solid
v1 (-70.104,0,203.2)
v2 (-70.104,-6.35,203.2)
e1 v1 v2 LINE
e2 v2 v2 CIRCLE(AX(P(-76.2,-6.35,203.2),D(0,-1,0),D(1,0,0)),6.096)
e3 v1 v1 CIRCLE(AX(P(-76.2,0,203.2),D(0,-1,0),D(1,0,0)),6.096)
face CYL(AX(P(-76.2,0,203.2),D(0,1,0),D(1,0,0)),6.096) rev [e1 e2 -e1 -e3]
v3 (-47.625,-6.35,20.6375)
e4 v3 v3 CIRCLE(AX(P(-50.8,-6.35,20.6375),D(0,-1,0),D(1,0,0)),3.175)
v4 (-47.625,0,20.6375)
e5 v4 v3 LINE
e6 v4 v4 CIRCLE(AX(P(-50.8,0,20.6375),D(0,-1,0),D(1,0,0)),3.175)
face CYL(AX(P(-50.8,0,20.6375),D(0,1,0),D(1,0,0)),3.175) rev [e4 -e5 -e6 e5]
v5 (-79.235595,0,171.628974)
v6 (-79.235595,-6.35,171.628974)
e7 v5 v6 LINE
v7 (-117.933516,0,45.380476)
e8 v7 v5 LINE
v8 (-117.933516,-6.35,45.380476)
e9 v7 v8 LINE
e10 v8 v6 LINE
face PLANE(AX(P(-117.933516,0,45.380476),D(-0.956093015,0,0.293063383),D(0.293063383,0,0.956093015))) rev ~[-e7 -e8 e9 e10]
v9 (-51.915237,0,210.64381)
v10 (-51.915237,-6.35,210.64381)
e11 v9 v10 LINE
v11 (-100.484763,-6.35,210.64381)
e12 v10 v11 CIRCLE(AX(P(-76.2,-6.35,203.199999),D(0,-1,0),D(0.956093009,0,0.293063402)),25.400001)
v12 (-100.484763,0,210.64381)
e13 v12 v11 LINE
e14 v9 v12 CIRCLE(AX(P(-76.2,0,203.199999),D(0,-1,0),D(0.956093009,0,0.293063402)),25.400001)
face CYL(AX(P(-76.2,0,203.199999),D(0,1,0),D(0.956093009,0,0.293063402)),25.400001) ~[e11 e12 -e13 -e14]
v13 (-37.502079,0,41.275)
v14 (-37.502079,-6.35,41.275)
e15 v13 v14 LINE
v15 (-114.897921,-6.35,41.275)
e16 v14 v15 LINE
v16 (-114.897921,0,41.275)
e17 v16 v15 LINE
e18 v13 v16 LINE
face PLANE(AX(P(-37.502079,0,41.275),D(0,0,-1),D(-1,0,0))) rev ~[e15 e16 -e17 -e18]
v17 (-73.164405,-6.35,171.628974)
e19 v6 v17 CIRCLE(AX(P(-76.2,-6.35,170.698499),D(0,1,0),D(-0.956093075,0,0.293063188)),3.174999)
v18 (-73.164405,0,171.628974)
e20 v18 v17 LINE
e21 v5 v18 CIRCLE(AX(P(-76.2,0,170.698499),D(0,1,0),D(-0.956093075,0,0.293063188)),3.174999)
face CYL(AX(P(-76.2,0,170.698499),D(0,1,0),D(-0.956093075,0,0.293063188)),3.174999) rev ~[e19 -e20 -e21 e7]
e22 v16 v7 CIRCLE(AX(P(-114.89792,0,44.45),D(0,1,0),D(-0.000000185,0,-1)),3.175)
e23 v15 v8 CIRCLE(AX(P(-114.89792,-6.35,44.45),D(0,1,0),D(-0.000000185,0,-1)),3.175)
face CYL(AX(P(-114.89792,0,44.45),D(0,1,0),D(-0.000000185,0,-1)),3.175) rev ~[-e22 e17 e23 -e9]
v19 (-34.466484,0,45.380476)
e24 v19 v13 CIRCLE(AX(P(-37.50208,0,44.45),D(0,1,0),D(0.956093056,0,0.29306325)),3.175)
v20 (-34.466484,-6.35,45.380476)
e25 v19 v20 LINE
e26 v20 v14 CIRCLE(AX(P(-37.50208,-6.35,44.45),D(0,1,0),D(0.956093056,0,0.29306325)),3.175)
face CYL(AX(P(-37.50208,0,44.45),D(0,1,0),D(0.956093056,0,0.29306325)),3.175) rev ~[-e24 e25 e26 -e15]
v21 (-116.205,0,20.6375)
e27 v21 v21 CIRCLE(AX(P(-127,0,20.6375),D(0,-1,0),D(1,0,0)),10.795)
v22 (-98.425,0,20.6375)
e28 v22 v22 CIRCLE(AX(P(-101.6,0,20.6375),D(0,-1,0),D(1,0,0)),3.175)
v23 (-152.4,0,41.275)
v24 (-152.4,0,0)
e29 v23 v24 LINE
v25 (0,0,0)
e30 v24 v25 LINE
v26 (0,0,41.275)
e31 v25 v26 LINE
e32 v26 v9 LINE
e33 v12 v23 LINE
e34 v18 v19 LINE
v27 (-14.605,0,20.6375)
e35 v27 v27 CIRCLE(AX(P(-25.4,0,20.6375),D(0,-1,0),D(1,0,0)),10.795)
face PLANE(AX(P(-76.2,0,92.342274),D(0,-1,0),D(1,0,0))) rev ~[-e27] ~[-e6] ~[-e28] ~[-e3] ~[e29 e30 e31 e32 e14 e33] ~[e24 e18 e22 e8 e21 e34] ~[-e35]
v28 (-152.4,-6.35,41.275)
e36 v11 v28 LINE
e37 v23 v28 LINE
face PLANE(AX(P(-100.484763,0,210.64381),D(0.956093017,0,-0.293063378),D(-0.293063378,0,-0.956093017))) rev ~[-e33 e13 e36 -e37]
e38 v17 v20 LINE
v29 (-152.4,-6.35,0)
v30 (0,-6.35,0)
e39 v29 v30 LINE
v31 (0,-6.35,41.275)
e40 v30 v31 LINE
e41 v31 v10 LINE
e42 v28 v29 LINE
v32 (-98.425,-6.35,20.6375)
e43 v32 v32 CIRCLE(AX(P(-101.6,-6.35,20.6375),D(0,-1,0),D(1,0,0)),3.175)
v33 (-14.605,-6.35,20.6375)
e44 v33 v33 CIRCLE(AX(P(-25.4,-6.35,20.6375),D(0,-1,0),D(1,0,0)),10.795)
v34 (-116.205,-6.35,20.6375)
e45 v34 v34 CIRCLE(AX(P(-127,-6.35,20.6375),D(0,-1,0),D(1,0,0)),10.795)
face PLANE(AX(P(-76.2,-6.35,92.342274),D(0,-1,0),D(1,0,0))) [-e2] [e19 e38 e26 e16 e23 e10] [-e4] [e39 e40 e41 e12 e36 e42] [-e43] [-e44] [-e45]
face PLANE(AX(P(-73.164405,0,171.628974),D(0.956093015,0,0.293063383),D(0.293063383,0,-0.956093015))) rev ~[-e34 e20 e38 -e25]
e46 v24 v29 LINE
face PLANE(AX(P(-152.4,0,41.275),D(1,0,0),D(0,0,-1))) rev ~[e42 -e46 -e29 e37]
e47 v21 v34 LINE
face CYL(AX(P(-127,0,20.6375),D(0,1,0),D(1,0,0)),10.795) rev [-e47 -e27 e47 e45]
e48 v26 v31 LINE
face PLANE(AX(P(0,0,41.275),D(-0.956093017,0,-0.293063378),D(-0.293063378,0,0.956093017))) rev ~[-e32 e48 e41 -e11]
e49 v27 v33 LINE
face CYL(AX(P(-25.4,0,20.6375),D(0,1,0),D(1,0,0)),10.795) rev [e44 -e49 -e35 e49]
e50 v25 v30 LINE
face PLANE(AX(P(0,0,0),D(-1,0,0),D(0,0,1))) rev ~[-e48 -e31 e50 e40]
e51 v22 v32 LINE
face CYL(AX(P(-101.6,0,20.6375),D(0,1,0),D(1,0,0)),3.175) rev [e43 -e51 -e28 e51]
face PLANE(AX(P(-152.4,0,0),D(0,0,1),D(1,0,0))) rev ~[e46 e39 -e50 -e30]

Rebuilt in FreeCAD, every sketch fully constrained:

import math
import FreeCAD as App
import Part
import Sketcher
from FreeCAD import Vector
Q = App.Units.Quantity

doc = App.newDocument("Part")
body = doc.addObject("PartDesign::Body", "Body")

# Sketch on XZ plane
sketch1 = body.newObject("Sketcher::SketchObject", "Sketch")
sketch1.AttachmentSupport = (doc.getObject("XZ_Plane"), [""])
sketch1.MapMode = "FlatFace"
sketch1.addGeometry(Part.LineSegment(Vector(-152.4, 0, 0), Vector(0, 0, 0)), False)
sketch1.addGeometry(Part.LineSegment(Vector(0, 0, 0), Vector(0, 41.275, 0)), False)
sketch1.addGeometry(Part.LineSegment(Vector(0, 41.275, 0), Vector(-51.915237, 210.64381, 0)), False)
sketch1.addGeometry(Part.ArcOfCircle(Part.Circle(Vector(-76.2, 203.199999, 0), Vector(0, 0, 1), 25.400001), math.radians(17.041447), math.radians(162.958553)), False)
sketch1.addGeometry(Part.LineSegment(Vector(-100.484763, 210.64381, 0), Vector(-152.4, 41.275, 0)), False)
sketch1.addGeometry(Part.LineSegment(Vector(-152.4, 41.275, 0), Vector(-152.4, 0, 0)), False)
sketch1.addGeometry(Part.Circle(Vector(-127, 20.6375, 0), Vector(0, 0, 1), 10.795), False)
sketch1.addGeometry(Part.Circle(Vector(-101.6, 20.6375, 0), Vector(0, 0, 1), 3.175), False)
sketch1.addGeometry(Part.Circle(Vector(-50.8, 20.6375, 0), Vector(0, 0, 1), 3.175), False)
sketch1.addGeometry(Part.Circle(Vector(-25.4, 20.6375, 0), Vector(0, 0, 1), 10.795), False)
sketch1.addGeometry(Part.ArcOfCircle(Part.Circle(Vector(-37.50208, 44.45, 0), Vector(0, 0, 1), 3.175), math.radians(-89.999989), math.radians(17.041438)), False)
sketch1.addGeometry(Part.LineSegment(Vector(-37.502079, 41.275, 0), Vector(-114.897921, 41.275, 0)), False)
sketch1.addGeometry(Part.ArcOfCircle(Part.Circle(Vector(-114.89792, 44.45, 0), Vector(0, 0, 1), 3.175), math.radians(162.958562), math.radians(269.999989)), False)
sketch1.addGeometry(Part.LineSegment(Vector(-117.933516, 45.380476, 0), Vector(-79.235595, 171.628974, 0)), False)
sketch1.addGeometry(Part.ArcOfCircle(Part.Circle(Vector(-76.2, 170.698499, 0), Vector(0, 0, 1), 3.174999), math.radians(17.041434), math.radians(162.958566)), False)
sketch1.addGeometry(Part.LineSegment(Vector(-73.164405, 171.628974, 0), Vector(-34.466484, 45.380476, 0)), False)
sketch1.addGeometry(Part.Circle(Vector(-76.2, 203.2, 0), Vector(0, 0, 1), 6.096), False)
sketch1.addConstraint(Sketcher.Constraint("Coincident", 0, 2, 1, 1))
sketch1.addConstraint(Sketcher.Constraint("Coincident", 1, 2, 2, 1))
sketch1.addConstraint(Sketcher.Constraint("Tangent", 2, 2, 3, 1))
sketch1.addConstraint(Sketcher.Constraint("Tangent", 3, 2, 4, 1))
sketch1.addConstraint(Sketcher.Constraint("Coincident", 4, 2, 5, 1))
sketch1.addConstraint(Sketcher.Constraint("Coincident", 5, 2, 0, 1))
sketch1.addConstraint(Sketcher.Constraint("Tangent", 10, 1, 11, 1))
sketch1.addConstraint(Sketcher.Constraint("Tangent", 11, 2, 12, 2))
sketch1.addConstraint(Sketcher.Constraint("Tangent", 12, 1, 13, 1))
sketch1.addConstraint(Sketcher.Constraint("Tangent", 13, 2, 14, 2))
sketch1.addConstraint(Sketcher.Constraint("Tangent", 14, 1, 15, 1))
sketch1.addConstraint(Sketcher.Constraint("Tangent", 15, 2, 10, 2))
sketch1.addConstraint(Sketcher.Constraint("Horizontal", 0))
sketch1.addConstraint(Sketcher.Constraint("Vertical", 1))
sketch1.addConstraint(Sketcher.Constraint("Vertical", 5))
sketch1.addConstraint(Sketcher.Constraint("Horizontal", 11))
sketch1.addConstraint(Sketcher.Constraint("Coincident", 0, 2, -1, 1))
sketch1.addConstraint(Sketcher.Constraint("Coincident", 16, 3, 3, 3))
sketch1.addConstraint(Sketcher.Constraint("Equal", 7, 8))
sketch1.addConstraint(Sketcher.Constraint("Equal", 6, 9))
sketch1.addConstraint(Sketcher.Constraint("Equal", 8, 10))
sketch1.addConstraint(Sketcher.Constraint("Equal", 10, 12))
sketch1.addConstraint(Sketcher.Constraint("Equal", 12, 14))
sketch1.addConstraint(Sketcher.Constraint("Parallel", 4, 13))
sketch1.addConstraint(Sketcher.Constraint("Parallel", 2, 15))
sketch1.addConstraint(Sketcher.Constraint("Horizontal", 6, 3, 7, 3))
sketch1.addConstraint(Sketcher.Constraint("Horizontal", 7, 3, 8, 3))
sketch1.addConstraint(Sketcher.Constraint("Horizontal", 8, 3, 9, 3))
sketch1.addConstraint(Sketcher.Constraint("Horizontal", 2, 2, 3, 2))
sketch1.addConstraint(Sketcher.Constraint("Horizontal", 1, 2, 4, 2))
sketch1.addConstraint(Sketcher.Constraint("Horizontal", 4, 2, 10, 1))
sketch1.addConstraint(Sketcher.Constraint("Vertical", 3, 3, 14, 3))
sketch1.addConstraint(Sketcher.Constraint("Radius", 3, Q("1 in")))
sketch1.addConstraint(Sketcher.Constraint("Diameter", 6, Q("0.85 in")))
sketch1.addConstraint(Sketcher.Constraint("Diameter", 7, Q("0.25 in")))
sketch1.addConstraint(Sketcher.Constraint("Diameter", 16, Q("0.48 in")))
sketch1.addConstraint(Sketcher.Constraint("DistanceX", 0, 1, 0, 2, Q("6 in")))
sketch1.addConstraint(Sketcher.Constraint("DistanceY", -1, 1, 3, 3, Q("8 in")))
sketch1.addConstraint(Sketcher.Constraint("DistanceX", 6, 3, -1, 1, Q("5 in")))
sketch1.addConstraint(Sketcher.Constraint("DistanceX", 7, 3, -1, 1, Q("4 in")))
sketch1.addConstraint(Sketcher.Constraint("DistanceX", 8, 3, -1, 1, Q("2 in")))
sketch1.addConstraint(Sketcher.Constraint("DistanceX", 9, 3, -1, 1, Q("1 in")))
sketch1.addConstraint(Sketcher.Constraint("DistanceY", 1, 1, 1, 2, Q("1.625 in")))
sketch1.addConstraint(Sketcher.Constraint("DistanceY", -1, 1, 6, 3, Q("0.8125 in")))
sketch1.addConstraint(Sketcher.Constraint("DistanceX", 11, 2, 11, 1, 77.395842))
pad1 = body.newObject("PartDesign::Pad", "Pad")
pad1.Profile = sketch1
pad1.Length = Q("0.25 in")

doc.recompute()
